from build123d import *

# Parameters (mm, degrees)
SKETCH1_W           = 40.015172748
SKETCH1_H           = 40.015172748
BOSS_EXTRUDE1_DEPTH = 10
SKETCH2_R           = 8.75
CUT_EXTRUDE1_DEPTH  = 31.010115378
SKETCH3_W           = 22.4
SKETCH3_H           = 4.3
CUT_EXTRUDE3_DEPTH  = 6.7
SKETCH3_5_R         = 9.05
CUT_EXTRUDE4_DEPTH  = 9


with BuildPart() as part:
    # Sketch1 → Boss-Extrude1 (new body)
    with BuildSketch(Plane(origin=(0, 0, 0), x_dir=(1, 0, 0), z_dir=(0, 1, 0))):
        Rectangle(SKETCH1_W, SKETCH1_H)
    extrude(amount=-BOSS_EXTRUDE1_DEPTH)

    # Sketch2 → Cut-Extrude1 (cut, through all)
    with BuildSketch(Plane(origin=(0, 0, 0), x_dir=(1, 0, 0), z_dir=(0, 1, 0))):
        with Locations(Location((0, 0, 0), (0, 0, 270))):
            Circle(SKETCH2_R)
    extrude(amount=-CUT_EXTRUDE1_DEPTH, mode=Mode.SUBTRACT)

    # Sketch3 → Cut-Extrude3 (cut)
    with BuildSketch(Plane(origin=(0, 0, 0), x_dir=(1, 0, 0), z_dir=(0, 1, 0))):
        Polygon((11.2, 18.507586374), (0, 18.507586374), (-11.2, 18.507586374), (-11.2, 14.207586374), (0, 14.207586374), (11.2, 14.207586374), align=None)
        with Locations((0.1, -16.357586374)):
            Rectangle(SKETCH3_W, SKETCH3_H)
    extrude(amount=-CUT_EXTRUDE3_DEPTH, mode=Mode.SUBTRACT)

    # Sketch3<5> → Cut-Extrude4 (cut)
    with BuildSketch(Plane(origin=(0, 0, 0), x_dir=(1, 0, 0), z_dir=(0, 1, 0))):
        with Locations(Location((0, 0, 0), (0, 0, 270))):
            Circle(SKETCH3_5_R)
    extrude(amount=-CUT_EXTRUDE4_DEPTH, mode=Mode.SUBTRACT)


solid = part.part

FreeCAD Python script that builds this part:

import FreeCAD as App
import Part
import Sketcher

doc = App.newDocument("Part")
params = doc.addObject("Spreadsheet::Sheet", "Params")
for row, (alias, value) in enumerate([
    ("pad1_length", "10 mm"),
    ("sketch2_diameter", "17.5 mm"),
    ("sketch3_width", "22.4 mm"),
    ("sketch3_height", "4.3 mm"),
    ("pocket2_length", "6.7 mm"),
    ("sketch4_diameter", "18.1 mm"),
    ("pocket3_length", "9 mm"),
], start=1):
    params.set(f"A{row}", alias)
    params.set(f"B{row}", "=" + value)
    params.setAlias(f"B{row}", alias)

body = doc.addObject("PartDesign::Body", "Body")

# Sketch on XZ plane
sketch1 = body.newObject("Sketcher::SketchObject", "Sketch")
sketch1.AttachmentSupport = (doc.getObject("XZ_Plane"), [""])
sketch1.MapMode = "FlatFace"
sketch1.addGeometry(Part.LineSegment(App.Vector(-20.007586, -20.007586, 0), App.Vector(-20.007586, 20.007586, 0)), False)
sketch1.addGeometry(Part.LineSegment(App.Vector(-20.007586, 20.007586, 0), App.Vector(20.007586, 20.007586, 0)), False)
sketch1.addGeometry(Part.LineSegment(App.Vector(20.007586, 20.007586, 0), App.Vector(20.007586, -20.007586, 0)), False)
sketch1.addGeometry(Part.LineSegment(App.Vector(20.007586, -20.007586, 0), App.Vector(-20.007586, -20.007586, 0)), False)
sketch1.addConstraint(Sketcher.Constraint("Coincident", 0, 2, 1, 1))
sketch1.addConstraint(Sketcher.Constraint("Coincident", 1, 2, 2, 1))
sketch1.addConstraint(Sketcher.Constraint("Coincident", 2, 2, 3, 1))
sketch1.addConstraint(Sketcher.Constraint("Coincident", 3, 2, 0, 1))
sketch1.addConstraint(Sketcher.Constraint("Vertical", 0))
sketch1.addConstraint(Sketcher.Constraint("Horizontal", 1))
sketch1.addConstraint(Sketcher.Constraint("Vertical", 2))
sketch1.addConstraint(Sketcher.Constraint("Horizontal", 3))
sketch1.addConstraint(Sketcher.Constraint("Symmetric", 0, 2, 2, 2, -1, 1))
sketch1.addConstraint(Sketcher.Constraint("Equal", 3, 0))
sketch1.addConstraint(Sketcher.Constraint("DistanceX", 1, 1, 1, 2, 40.015173))
pad1 = body.newObject("PartDesign::Pad", "Pad")
pad1.Profile = sketch1
pad1.setExpression("Length", "Params.pad1_length")

# Sketch on XZ plane
sketch2 = body.newObject("Sketcher::SketchObject", "Sketch001")
sketch2.AttachmentSupport = (doc.getObject("XZ_Plane"), [""])
sketch2.MapMode = "FlatFace"
sketch2.addGeometry(Part.Circle(App.Vector(0, 0, 0), App.Vector(0, 0, 1), 8.75), False)
sketch2.addConstraint(Sketcher.Constraint("Coincident", 0, 3, -1, 1))
sketch2.addConstraint(Sketcher.Constraint("Diameter", 0, 17.5))
sketch2.setExpression("Constraints[1]", "Params.sketch2_diameter")
pocket1 = body.newObject("PartDesign::Pocket", "Pocket")
pocket1.Profile = sketch2
pocket1.Type = "ThroughAll"
pocket1.Reversed = True

# Sketch on XZ plane
sketch3 = body.newObject("Sketcher::SketchObject", "Sketch002")
sketch3.AttachmentSupport = (doc.getObject("XZ_Plane"), [""])
sketch3.MapMode = "FlatFace"
sketch3.addGeometry(Part.LineSegment(App.Vector(11.2, -18.507586, 0), App.Vector(-11.2, -18.507586, 0)), False)
sketch3.addGeometry(Part.LineSegment(App.Vector(-11.2, -18.507586, 0), App.Vector(-11.2, -14.207586, 0)), False)
sketch3.addGeometry(Part.LineSegment(App.Vector(-11.2, -14.207586, 0), App.Vector(11.2, -14.207586, 0)), False)
sketch3.addGeometry(Part.LineSegment(App.Vector(11.2, -14.207586, 0), App.Vector(11.2, -18.507586, 0)), False)
sketch3.addGeometry(Part.LineSegment(App.Vector(-11.1, 14.207586, 0), App.Vector(-11.1, 18.507586, 0)), False)
sketch3.addGeometry(Part.LineSegment(App.Vector(-11.1, 18.507586, 0), App.Vector(11.3, 18.507586, 0)), False)
sketch3.addGeometry(Part.LineSegment(App.Vector(11.3, 18.507586, 0), App.Vector(11.3, 14.207586, 0)), False)
sketch3.addGeometry(Part.LineSegment(App.Vector(11.3, 14.207586, 0), App.Vector(-11.1, 14.207586, 0)), False)
sketch3.addConstraint(Sketcher.Constraint("Coincident", 0, 2, 1, 1))
sketch3.addConstraint(Sketcher.Constraint("Coincident", 1, 2, 2, 1))
sketch3.addConstraint(Sketcher.Constraint("Coincident", 2, 2, 3, 1))
sketch3.addConstraint(Sketcher.Constraint("Coincident", 3, 2, 0, 1))
sketch3.addConstraint(Sketcher.Constraint("Coincident", 4, 2, 5, 1))
sketch3.addConstraint(Sketcher.Constraint("Coincident", 5, 2, 6, 1))
sketch3.addConstraint(Sketcher.Constraint("Coincident", 6, 2, 7, 1))
sketch3.addConstraint(Sketcher.Constraint("Coincident", 7, 2, 4, 1))
sketch3.addConstraint(Sketcher.Constraint("Horizontal", 0))
sketch3.addConstraint(Sketcher.Constraint("Vertical", 1))
sketch3.addConstraint(Sketcher.Constraint("Horizontal", 2))
sketch3.addConstraint(Sketcher.Constraint("Vertical", 3))
sketch3.addConstraint(Sketcher.Constraint("Vertical", 4))
sketch3.addConstraint(Sketcher.Constraint("Horizontal", 5))
sketch3.addConstraint(Sketcher.Constraint("Vertical", 6))
sketch3.addConstraint(Sketcher.Constraint("Horizontal", 7))
sketch3.addConstraint(Sketcher.Constraint("Equal", 2, 5))
sketch3.addConstraint(Sketcher.Constraint("Equal", 3, 4))
sketch3.addConstraint(Sketcher.Constraint("DistanceX", 0, 2, 0, 1, 22.4))
sketch3.addConstraint(Sketcher.Constraint("DistanceY", 1, 1, 1, 2, 4.3))
sketch3.addConstraint(Sketcher.Constraint("DistanceX", 0, 2, -1, 1, 11.2))
sketch3.addConstraint(Sketcher.Constraint("DistanceX", 4, 2, -1, 1, 11.1))
sketch3.addConstraint(Sketcher.Constraint("DistanceY", 0, 2, -1, 1, 18.507586))
sketch3.addConstraint(Sketcher.Constraint("DistanceY", -1, 1, 4, 2, 18.507586))
sketch3.setExpression("Constraints[18]", "Params.sketch3_width")
sketch3.setExpression("Constraints[19]", "Params.sketch3_height")
pocket2 = body.newObject("PartDesign::Pocket", "Pocket001")
pocket2.Profile = sketch3
pocket2.setExpression("Length", "Params.pocket2_length")
pocket2.Reversed = True

# Sketch on XZ plane
sketch4 = body.newObject("Sketcher::SketchObject", "Sketch003")
sketch4.AttachmentSupport = (doc.getObject("XZ_Plane"), [""])
sketch4.MapMode = "FlatFace"
sketch4.addGeometry(Part.Circle(App.Vector(0, 0, 0), App.Vector(0, 0, 1), 9.05), False)
sketch4.addConstraint(Sketcher.Constraint("Coincident", 0, 3, -1, 1))
sketch4.addConstraint(Sketcher.Constraint("Diameter", 0, 18.1))
sketch4.setExpression("Constraints[1]", "Params.sketch4_diameter")
pocket3 = body.newObject("PartDesign::Pocket", "Pocket002")
pocket3.Profile = sketch4
pocket3.setExpression("Length", "Params.pocket3_length")
pocket3.Reversed = True

doc.recompute()
